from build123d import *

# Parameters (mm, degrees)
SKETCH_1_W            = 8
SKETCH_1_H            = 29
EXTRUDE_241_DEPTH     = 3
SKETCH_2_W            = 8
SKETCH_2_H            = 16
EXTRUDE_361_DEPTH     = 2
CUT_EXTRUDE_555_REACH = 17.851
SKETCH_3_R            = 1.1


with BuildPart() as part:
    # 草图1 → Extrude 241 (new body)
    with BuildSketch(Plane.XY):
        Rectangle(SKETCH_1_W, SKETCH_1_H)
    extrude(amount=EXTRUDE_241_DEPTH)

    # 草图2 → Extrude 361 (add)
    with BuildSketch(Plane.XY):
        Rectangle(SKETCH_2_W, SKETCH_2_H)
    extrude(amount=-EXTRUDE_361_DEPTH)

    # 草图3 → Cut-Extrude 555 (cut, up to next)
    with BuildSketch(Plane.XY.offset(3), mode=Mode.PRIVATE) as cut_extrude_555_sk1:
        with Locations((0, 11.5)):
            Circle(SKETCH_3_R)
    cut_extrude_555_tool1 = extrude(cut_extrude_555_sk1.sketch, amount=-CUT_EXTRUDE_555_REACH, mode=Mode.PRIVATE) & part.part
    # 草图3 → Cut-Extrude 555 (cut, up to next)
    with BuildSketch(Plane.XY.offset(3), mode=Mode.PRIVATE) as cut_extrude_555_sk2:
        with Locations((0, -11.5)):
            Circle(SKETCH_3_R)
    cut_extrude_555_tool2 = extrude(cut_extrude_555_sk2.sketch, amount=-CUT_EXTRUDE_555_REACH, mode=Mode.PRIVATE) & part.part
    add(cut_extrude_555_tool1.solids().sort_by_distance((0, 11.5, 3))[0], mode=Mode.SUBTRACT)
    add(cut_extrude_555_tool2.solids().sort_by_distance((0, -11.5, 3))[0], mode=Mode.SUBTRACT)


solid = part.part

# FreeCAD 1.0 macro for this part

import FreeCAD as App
import Part
import Sketcher

V = App.Vector


def add_polygon(sketch, points):
    """Adds a closed chain of lines whose ends are joined by coincident constraints."""
    first, n = sketch.GeometryCount, len(points)
    for a, b in zip(points, points[1:] + points[:1]):
        sketch.addGeometry(Part.LineSegment(App.Vector(*a, 0), App.Vector(*b, 0)), False)
    for i in range(n):
        sketch.addConstraint(Sketcher.Constraint("Coincident", first + i, 2, first + (i + 1) % n, 1))

doc = App.newDocument("Part")
body = doc.addObject("PartDesign::Body", "Body")

# Sketch on XY plane
sketch1 = doc.addObject("Sketcher::SketchObject", "Sketch")
body.addObject(sketch1)
sketch1.AttachmentSupport = (doc.XY_Plane, [""])
sketch1.MapMode = "FlatFace"
add_polygon(sketch1, [(-4, 14.5), (-4, -14.5), (4, -14.5), (4, 14.5)])  # lines 0-3
sketch1.addConstraint([
    Sketcher.Constraint("Vertical", 0),
    Sketcher.Constraint("Horizontal", 1),
    Sketcher.Constraint("Vertical", 2),
    Sketcher.Constraint("Horizontal", 3),
    Sketcher.Constraint("Symmetric", 0, 2, 2, 2, -1, 1),
    Sketcher.Constraint("DistanceX", 1, 1, 1, 2, 8.0),
    Sketcher.Constraint("DistanceY", 0, 2, 0, 1, 29.0),
])
pad1 = doc.addObject("PartDesign::Pad", "Pad")
body.addObject(pad1)
pad1.Profile = sketch1
pad1.Length = 3

# Sketch on XY plane
sketch2 = doc.addObject("Sketcher::SketchObject", "Sketch001")
body.addObject(sketch2)
sketch2.AttachmentSupport = (doc.XY_Plane, [""])
sketch2.MapMode = "FlatFace"
add_polygon(sketch2, [(-4, 8), (-4, -8), (4, -8), (4, 8)])  # lines 0-3
sketch2.addConstraint([
    Sketcher.Constraint("Vertical", 0),
    Sketcher.Constraint("Horizontal", 1),
    Sketcher.Constraint("Vertical", 2),
    Sketcher.Constraint("Horizontal", 3),
    Sketcher.Constraint("Symmetric", 0, 2, 2, 2, -1, 1),
    Sketcher.Constraint("DistanceX", 1, 1, 1, 2, 8.0),
    Sketcher.Constraint("DistanceY", 0, 2, 0, 1, 16.0),
])
pad2 = doc.addObject("PartDesign::Pad", "Pad001")
body.addObject(pad2)
pad2.Profile = sketch2
pad2.Length = 2
pad2.Reversed = True

# Sketch on XY plane
sketch3 = doc.addObject("Sketcher::SketchObject", "Sketch002")
body.addObject(sketch3)
sketch3.AttachmentSupport = (doc.XY_Plane, [""])
sketch3.MapMode = "FlatFace"
sketch3.AttachmentOffset = App.Placement(V(0, 0, 3), App.Rotation())
sketch3.addGeometry(Part.Circle(V(0, 11.5, 0), V(0, 0, 1), 1.1), False)
sketch3.addConstraint([
    Sketcher.Constraint("PointOnObject", 0, 3, -2),
    Sketcher.Constraint("Diameter", 0, 2.2),
    Sketcher.Constraint("DistanceY", -1, 1, 0, 3, 11.5),
])
pocket1 = doc.addObject("PartDesign::Pocket", "Pocket")
body.addObject(pocket1)
pocket1.Profile = sketch3
pocket1.Type = "UpToFirst"

# Sketch on XY plane
sketch4 = doc.addObject("Sketcher::SketchObject", "Sketch003")
body.addObject(sketch4)
sketch4.AttachmentSupport = (doc.XY_Plane, [""])
sketch4.MapMode = "FlatFace"
sketch4.AttachmentOffset = App.Placement(V(0, 0, 3), App.Rotation())
sketch4.addGeometry(Part.Circle(V(0, -11.5, 0), V(0, 0, 1), 1.1), False)
sketch4.addConstraint([
    Sketcher.Constraint("PointOnObject", 0, 3, -2),
    Sketcher.Constraint("Diameter", 0, 2.2),
    Sketcher.Constraint("DistanceY", 0, 3, -1, 1, 11.5),
])
pocket2 = doc.addObject("PartDesign::Pocket", "Pocket001")
body.addObject(pocket2)
pocket2.Profile = sketch4
pocket2.Type = "UpToFirst"

doc.recompute()
